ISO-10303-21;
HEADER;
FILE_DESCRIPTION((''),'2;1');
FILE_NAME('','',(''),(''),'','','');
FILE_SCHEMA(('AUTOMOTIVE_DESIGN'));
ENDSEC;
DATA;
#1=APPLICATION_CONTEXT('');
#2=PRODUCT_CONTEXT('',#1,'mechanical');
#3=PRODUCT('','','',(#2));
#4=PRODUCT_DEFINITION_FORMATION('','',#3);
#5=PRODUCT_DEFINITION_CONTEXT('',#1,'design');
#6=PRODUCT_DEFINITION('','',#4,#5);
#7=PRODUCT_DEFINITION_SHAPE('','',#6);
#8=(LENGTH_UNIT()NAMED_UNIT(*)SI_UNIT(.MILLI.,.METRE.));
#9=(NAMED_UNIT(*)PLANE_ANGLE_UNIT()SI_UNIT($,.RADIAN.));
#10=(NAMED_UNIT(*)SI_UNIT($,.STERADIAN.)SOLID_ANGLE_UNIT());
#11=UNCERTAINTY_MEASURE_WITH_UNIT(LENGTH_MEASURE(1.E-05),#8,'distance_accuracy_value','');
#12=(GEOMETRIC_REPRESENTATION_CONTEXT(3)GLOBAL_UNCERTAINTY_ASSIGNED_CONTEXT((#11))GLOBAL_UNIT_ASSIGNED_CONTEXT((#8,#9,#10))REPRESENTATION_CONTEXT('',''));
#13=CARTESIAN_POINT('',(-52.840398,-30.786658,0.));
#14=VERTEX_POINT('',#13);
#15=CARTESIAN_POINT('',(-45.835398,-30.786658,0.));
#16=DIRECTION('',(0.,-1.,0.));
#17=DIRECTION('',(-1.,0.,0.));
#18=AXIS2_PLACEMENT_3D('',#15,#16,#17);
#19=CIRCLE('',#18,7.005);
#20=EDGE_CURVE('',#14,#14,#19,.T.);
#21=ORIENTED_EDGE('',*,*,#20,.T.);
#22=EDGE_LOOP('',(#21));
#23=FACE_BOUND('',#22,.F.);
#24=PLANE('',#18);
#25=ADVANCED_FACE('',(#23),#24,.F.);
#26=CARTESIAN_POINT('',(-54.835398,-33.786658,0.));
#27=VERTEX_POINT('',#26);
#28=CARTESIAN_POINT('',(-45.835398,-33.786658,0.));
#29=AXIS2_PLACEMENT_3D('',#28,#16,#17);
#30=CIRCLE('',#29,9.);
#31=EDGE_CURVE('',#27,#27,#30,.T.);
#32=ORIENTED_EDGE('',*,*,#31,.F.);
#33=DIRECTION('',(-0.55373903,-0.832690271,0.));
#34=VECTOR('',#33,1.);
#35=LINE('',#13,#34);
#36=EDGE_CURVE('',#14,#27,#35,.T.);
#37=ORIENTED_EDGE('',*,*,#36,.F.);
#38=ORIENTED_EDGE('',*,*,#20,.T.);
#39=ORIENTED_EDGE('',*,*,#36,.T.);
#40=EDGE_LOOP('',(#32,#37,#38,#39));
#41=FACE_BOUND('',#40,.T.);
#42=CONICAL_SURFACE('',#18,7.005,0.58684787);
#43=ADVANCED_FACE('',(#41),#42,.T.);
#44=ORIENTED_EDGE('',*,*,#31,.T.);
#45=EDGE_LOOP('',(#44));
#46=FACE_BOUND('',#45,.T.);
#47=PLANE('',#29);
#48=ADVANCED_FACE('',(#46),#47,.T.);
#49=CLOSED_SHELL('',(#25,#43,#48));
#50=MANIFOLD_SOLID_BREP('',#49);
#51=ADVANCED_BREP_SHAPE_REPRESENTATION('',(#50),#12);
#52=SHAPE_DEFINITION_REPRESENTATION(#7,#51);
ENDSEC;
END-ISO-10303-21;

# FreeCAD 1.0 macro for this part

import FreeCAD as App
import Part
import Sketcher
from FreeCAD import Vector
Q = App.Units.Quantity


def add_polygon(sketch, points):
    """Adds a closed chain of lines whose ends are joined by coincident constraints."""
    first, n = sketch.GeometryCount, len(points)
    for a, b in zip(points, points[1:] + points[:1]):
        sketch.addGeometry(Part.LineSegment(App.Vector(*a, 0), App.Vector(*b, 0)), False)
    for i in range(n):
        sketch.addConstraint(Sketcher.Constraint("Coincident", first + i, 2, first + (i + 1) % n, 1))

doc = App.newDocument("Part")
body = doc.addObject("PartDesign::Body", "Body")

# Sketch on XY plane
sketch1 = body.newObject("Sketcher::SketchObject", "Sketch")
sketch1.AttachmentSupport = (doc.getObject("XY_Plane"), [""])
sketch1.MapMode = "FlatFace"
add_polygon(sketch1, [(-54.8, -33.8), (-45.8, -33.8), (-45.8, -30.8), (-52.8, -30.8)])  # lines 0-3
sketch1.addGeometry(Part.LineSegment(Vector(-45.8, -30.8, 0), Vector(-45.8, -33.8, 0)), True)  # axis
sketch1.addConstraint(Sketcher.Constraint("Horizontal", 0))
sketch1.addConstraint(Sketcher.Constraint("Vertical", 1))
sketch1.addConstraint(Sketcher.Constraint("Horizontal", 2))
sketch1.addConstraint(Sketcher.Constraint("Vertical", 4))
sketch1.addConstraint(Sketcher.Constraint("Coincident", 4, 1, 1, 2))
sketch1.addConstraint(Sketcher.Constraint("Horizontal", 3, 2, 4, 2))
sketch1.addConstraint(Sketcher.Constraint("DistanceX", 0, 1, 0, 2, Q("9 mm")))
sketch1.addConstraint(Sketcher.Constraint("DistanceY", 1, 1, 1, 2, Q("3 mm")))
sketch1.addConstraint(Sketcher.Constraint("DistanceX", 2, 2, 2, 1, Q("7.005 mm")))
sketch1.addConstraint(Sketcher.Constraint("DistanceY", 0, 2, -1, 1, Q("33.786658 mm")))
sketch1.addConstraint(Sketcher.Constraint("DistanceX", 0, 2, -1, 1, Q("45.835398 mm")))
revolution = body.newObject("PartDesign::Revolution", "Revolution")
revolution.Profile = sketch1
revolution.ReferenceAxis = (sketch1, ["Axis0"])
revolution.Angle = 360

doc.recompute()
